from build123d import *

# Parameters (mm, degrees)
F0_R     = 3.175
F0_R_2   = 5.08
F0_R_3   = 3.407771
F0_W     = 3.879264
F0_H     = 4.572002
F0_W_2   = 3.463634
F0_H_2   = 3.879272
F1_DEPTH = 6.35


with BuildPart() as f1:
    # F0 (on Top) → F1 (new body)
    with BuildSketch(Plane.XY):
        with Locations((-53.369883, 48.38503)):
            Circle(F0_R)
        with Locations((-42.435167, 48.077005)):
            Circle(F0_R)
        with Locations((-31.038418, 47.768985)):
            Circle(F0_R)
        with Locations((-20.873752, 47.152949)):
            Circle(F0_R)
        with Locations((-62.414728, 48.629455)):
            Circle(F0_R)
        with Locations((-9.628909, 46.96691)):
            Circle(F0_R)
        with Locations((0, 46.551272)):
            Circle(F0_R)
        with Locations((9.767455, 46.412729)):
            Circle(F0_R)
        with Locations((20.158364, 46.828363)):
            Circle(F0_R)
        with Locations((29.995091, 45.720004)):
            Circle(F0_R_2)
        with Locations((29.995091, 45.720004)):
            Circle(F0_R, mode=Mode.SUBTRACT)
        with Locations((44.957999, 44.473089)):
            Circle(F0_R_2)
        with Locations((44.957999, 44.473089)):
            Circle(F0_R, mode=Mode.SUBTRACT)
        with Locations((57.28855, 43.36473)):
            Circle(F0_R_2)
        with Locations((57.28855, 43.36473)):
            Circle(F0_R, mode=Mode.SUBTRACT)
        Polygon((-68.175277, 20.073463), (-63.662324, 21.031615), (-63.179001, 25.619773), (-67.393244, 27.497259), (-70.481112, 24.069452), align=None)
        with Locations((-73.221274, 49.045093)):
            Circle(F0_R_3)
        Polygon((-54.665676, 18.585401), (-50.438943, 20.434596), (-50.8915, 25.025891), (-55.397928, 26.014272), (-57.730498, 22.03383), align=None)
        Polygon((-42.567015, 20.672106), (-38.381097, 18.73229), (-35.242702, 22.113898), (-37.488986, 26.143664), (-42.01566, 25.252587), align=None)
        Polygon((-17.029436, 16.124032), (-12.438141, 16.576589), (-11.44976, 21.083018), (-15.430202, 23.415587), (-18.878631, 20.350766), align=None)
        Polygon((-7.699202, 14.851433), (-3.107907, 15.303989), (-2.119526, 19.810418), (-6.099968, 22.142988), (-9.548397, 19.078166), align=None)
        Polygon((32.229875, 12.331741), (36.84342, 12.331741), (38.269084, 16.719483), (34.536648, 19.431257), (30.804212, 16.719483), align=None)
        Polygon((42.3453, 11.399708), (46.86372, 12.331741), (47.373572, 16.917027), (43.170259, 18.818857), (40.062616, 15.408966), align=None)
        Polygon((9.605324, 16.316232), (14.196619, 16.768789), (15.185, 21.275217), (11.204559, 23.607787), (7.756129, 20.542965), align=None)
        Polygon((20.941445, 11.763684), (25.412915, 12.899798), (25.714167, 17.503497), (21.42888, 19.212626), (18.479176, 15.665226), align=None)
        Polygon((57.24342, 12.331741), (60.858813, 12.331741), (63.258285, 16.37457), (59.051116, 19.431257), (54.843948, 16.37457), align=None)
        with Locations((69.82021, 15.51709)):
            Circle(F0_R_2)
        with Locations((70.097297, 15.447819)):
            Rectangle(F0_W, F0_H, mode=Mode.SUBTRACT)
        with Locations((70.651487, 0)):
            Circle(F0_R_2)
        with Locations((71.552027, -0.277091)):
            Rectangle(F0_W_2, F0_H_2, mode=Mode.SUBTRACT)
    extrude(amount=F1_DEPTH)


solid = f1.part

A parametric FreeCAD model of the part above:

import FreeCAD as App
import Part
import Sketcher
from FreeCAD import Vector
Q = App.Units.Quantity


def add_polygon(sketch, points):
    """Adds a closed chain of lines whose ends are joined by coincident constraints."""
    first, n = sketch.GeometryCount, len(points)
    for a, b in zip(points, points[1:] + points[:1]):
        sketch.addGeometry(Part.LineSegment(App.Vector(*a, 0), App.Vector(*b, 0)), False)
    for i in range(n):
        sketch.addConstraint(Sketcher.Constraint("Coincident", first + i, 2, first + (i + 1) % n, 1))

doc = App.newDocument("Part")
body = doc.addObject("PartDesign::Body", "Body")
body.AllowCompound = True

sketch1 = body.newObject("Sketcher::SketchObject", "Sketch")
sketch1.AttachmentSupport = (doc.getObject("XY_Plane"), [""])
sketch1.MapMode = "FlatFace"
sketch1.addGeometry(Part.Circle(Vector(-53.369883, 48.38503, 0), Vector(0, 0, 1), 3.175), False)
sketch1.addGeometry(Part.Circle(Vector(-42.435167, 48.077005, 0), Vector(0, 0, 1), 3.175), False)
sketch1.addGeometry(Part.Circle(Vector(-31.038418, 47.768985, 0), Vector(0, 0, 1), 3.175), False)
sketch1.addGeometry(Part.Circle(Vector(-20.873752, 47.152949, 0), Vector(0, 0, 1), 3.175), False)
sketch1.addGeometry(Part.Circle(Vector(-62.414728, 48.629455, 0), Vector(0, 0, 1), 3.175), False)
sketch1.addGeometry(Part.Circle(Vector(-9.628909, 46.96691, 0), Vector(0, 0, 1), 3.175), False)
sketch1.addGeometry(Part.Circle(Vector(0, 46.551272, 0), Vector(0, 0, 1), 3.175), False)
sketch1.addGeometry(Part.Circle(Vector(9.767455, 46.412729, 0), Vector(0, 0, 1), 3.175), False)
sketch1.addGeometry(Part.Circle(Vector(20.158364, 46.828363, 0), Vector(0, 0, 1), 3.175), False)
sketch1.addGeometry(Part.Circle(Vector(29.995091, 45.720004, 0), Vector(0, 0, 1), 5.08), False)
sketch1.addGeometry(Part.Circle(Vector(29.995091, 45.720004, 0), Vector(0, 0, 1), 3.175), False)
sketch1.addGeometry(Part.Circle(Vector(44.957999, 44.473089, 0), Vector(0, 0, 1), 5.08), False)
sketch1.addGeometry(Part.Circle(Vector(44.957999, 44.473089, 0), Vector(0, 0, 1), 3.175), False)
sketch1.addGeometry(Part.Circle(Vector(57.28855, 43.36473, 0), Vector(0, 0, 1), 5.08), False)
sketch1.addGeometry(Part.Circle(Vector(57.28855, 43.36473, 0), Vector(0, 0, 1), 3.175), False)
add_polygon(sketch1, [(-68.175277, 20.073463), (-63.662324, 21.031615), (-63.179001, 25.619773), (-67.393244, 27.497259), (-70.481112, 24.069452)])
sketch1.addGeometry(Part.Circle(Vector(-73.221274, 49.045093, 0), Vector(0, 0, 1), 3.407771), False)
add_polygon(sketch1, [(-54.665676, 18.585401), (-50.438943, 20.434596), (-50.8915, 25.025891), (-55.397928, 26.014272), (-57.730498, 22.03383)])
add_polygon(sketch1, [(-42.567015, 20.672106), (-38.381097, 18.73229), (-35.242702, 22.113898), (-37.488986, 26.143664), (-42.01566, 25.252587)])
add_polygon(sketch1, [(-17.029436, 16.124032), (-12.438141, 16.576589), (-11.44976, 21.083018), (-15.430202, 23.415587), (-18.878631, 20.350766)])
add_polygon(sketch1, [(-7.699202, 14.851433), (-3.107907, 15.303989), (-2.119526, 19.810418), (-6.099968, 22.142988), (-9.548397, 19.078166)])
add_polygon(sketch1, [(32.229875, 12.331741), (36.84342, 12.331741), (38.269084, 16.719483), (34.536648, 19.431257), (30.804212, 16.719483)])
add_polygon(sketch1, [(42.3453, 11.399708), (46.86372, 12.331741), (47.373572, 16.917027), (43.170259, 18.818857), (40.062616, 15.408966)])
add_polygon(sketch1, [(9.605324, 16.316232), (14.196619, 16.768789), (15.185, 21.275217), (11.204559, 23.607787), (7.756129, 20.542965)])
add_polygon(sketch1, [(20.941445, 11.763684), (25.412915, 12.899798), (25.714167, 17.503497), (21.42888, 19.212626), (18.479176, 15.665226)])
add_polygon(sketch1, [(57.24342, 12.331741), (60.858813, 12.331741), (63.258285, 16.37457), (59.051116, 19.431257), (54.843948, 16.37457)])
sketch1.addGeometry(Part.Circle(Vector(69.82021, 15.51709, 0), Vector(0, 0, 1), 5.08), False)
add_polygon(sketch1, [(72.036929, 13.161818), (68.157665, 13.161818), (68.157665, 17.73382), (72.036929, 17.73382)])
sketch1.addGeometry(Part.Circle(Vector(70.651487, 0, 0), Vector(0, 0, 1), 5.08), False)
add_polygon(sketch1, [(73.283844, -2.216727), (69.82021, -2.216727), (69.82021, 1.662545), (73.283844, 1.662545)])
sketch1.addConstraint([
    Sketcher.Constraint("Horizontal", 41),
    Sketcher.Constraint("Horizontal", 61),
    Sketcher.Constraint("Horizontal", 67),
    Sketcher.Constraint("Vertical", 68),
    Sketcher.Constraint("Horizontal", 69),
    Sketcher.Constraint("Vertical", 70),
    Sketcher.Constraint("Horizontal", 72),
    Sketcher.Constraint("Vertical", 73),
    Sketcher.Constraint("Horizontal", 74),
    Sketcher.Constraint("Vertical", 75),
    Sketcher.Constraint("Coincident", 10, 3, 9, 3),
    Sketcher.Constraint("Coincident", 12, 3, 11, 3),
    Sketcher.Constraint("Coincident", 14, 3, 13, 3),
    Sketcher.Constraint("Equal", 0, 1),
    Sketcher.Constraint("Equal", 1, 2),
    Sketcher.Constraint("Equal", 2, 3),
    Sketcher.Constraint("Equal", 3, 4),
    Sketcher.Constraint("Equal", 4, 5),
    Sketcher.Constraint("Equal", 5, 6),
    Sketcher.Constraint("Equal", 6, 7),
    Sketcher.Constraint("Equal", 7, 8),
    Sketcher.Constraint("Equal", 8, 10),
    Sketcher.Constraint("Equal", 9, 11),
    Sketcher.Constraint("Equal", 10, 12),
    Sketcher.Constraint("Equal", 11, 13),
    Sketcher.Constraint("Equal", 12, 14),
    Sketcher.Constraint("Equal", 13, 66),
    Sketcher.Constraint("Equal", 66, 71),
    Sketcher.Constraint("PointOnObject", 6, 3, -2),
    Sketcher.Constraint("PointOnObject", 71, 3, -1),
    Sketcher.Constraint("Perpendicular", 22, 31),
    Sketcher.Constraint("Perpendicular", 23, 32),
    Sketcher.Constraint("Perpendicular", 24, 33),
    Sketcher.Constraint("Perpendicular", 25, 34),
    Sketcher.Constraint("Perpendicular", 21, 35),
    Sketcher.Constraint("Parallel", 31, 36),
    Sketcher.Constraint("Parallel", 32, 37),
    Sketcher.Constraint("Parallel", 33, 38),
    Sketcher.Constraint("Parallel", 34, 39),
    Sketcher.Constraint("Parallel", 35, 40),
    Sketcher.Constraint("Parallel", 36, 51),
    Sketcher.Constraint("Parallel", 37, 52),
    Sketcher.Constraint("Parallel", 38, 53),
    Sketcher.Constraint("Parallel", 39, 54),
    Sketcher.Constraint("Parallel", 40, 55),
    Sketcher.Constraint("Parallel", 43, 63),
    Sketcher.Constraint("Parallel", 44, 64),
    Sketcher.Constraint("Horizontal", 42, 2, 44, 2),
    Sketcher.Constraint("Horizontal", 45, 2, 46, 2),
    Sketcher.Constraint("Horizontal", 46, 2, 61, 2),
    Sketcher.Constraint("Horizontal", 43, 2, 63, 2),
    Sketcher.Constraint("Horizontal", 62, 2, 64, 2),
    Sketcher.Constraint("Vertical", 66, 3, 72, 2),
    Sketcher.Constraint("Equal", 15, 16),
    Sketcher.Constraint("Equal", 16, 17),
    Sketcher.Constraint("Equal", 17, 18),
    Sketcher.Constraint("Equal", 18, 19),
    Sketcher.Constraint("Equal", 19, 21),
    Sketcher.Constraint("Equal", 21, 22),
    Sketcher.Constraint("Equal", 22, 23),
    Sketcher.Constraint("Equal", 23, 24),
    Sketcher.Constraint("Equal", 24, 25),
    Sketcher.Constraint("Equal", 25, 26),
    Sketcher.Constraint("Equal", 26, 27),
    Sketcher.Constraint("Equal", 27, 28),
    Sketcher.Constraint("Equal", 28, 29),
    Sketcher.Constraint("Equal", 29, 30),
    Sketcher.Constraint("Equal", 30, 31),
    Sketcher.Constraint("Equal", 31, 32),
    Sketcher.Constraint("Equal", 32, 33),
    Sketcher.Constraint("Equal", 35, 36),
    Sketcher.Constraint("Equal", 36, 37),
    Sketcher.Constraint("Equal", 37, 38),
    Sketcher.Constraint("Equal", 40, 42),
    Sketcher.Constraint("Equal", 42, 43),
    Sketcher.Constraint("Equal", 43, 44),
    Sketcher.Constraint("Equal", 44, 45),
    Sketcher.Constraint("Equal", 45, 46),
    Sketcher.Constraint("Equal", 46, 47),
    Sketcher.Constraint("Equal", 47, 48),
    Sketcher.Constraint("Equal", 48, 49),
    Sketcher.Constraint("Equal", 49, 50),
    Sketcher.Constraint("Equal", 50, 51),
    Sketcher.Constraint("Equal", 51, 52),
    Sketcher.Constraint("Equal", 52, 53),
    Sketcher.Constraint("Equal", 55, 56),
    Sketcher.Constraint("Equal", 56, 57),
    Sketcher.Constraint("Equal", 57, 58),
    Sketcher.Constraint("Equal", 58, 59),
    Sketcher.Constraint("Equal", 59, 60),
    Sketcher.Constraint("Equal", 62, 65),
    Sketcher.Constraint("Diameter", 9, Q("0.4 in")),
    Sketcher.Constraint("Diameter", 0, Q("0.25 in")),
    Sketcher.Constraint("Angle", 42, Q("71.999998 deg")),
    Sketcher.Constraint("Angle", 43, Q("143.999995 deg")),
    Sketcher.Constraint("DistanceY", 68, 1, 68, 2, Q("0.1800001 in")),
    Sketcher.Constraint("DistanceY", -1, 1, 9, 3, Q("1.8000002 in")),
    Sketcher.Constraint("DistanceX", -1, 1, 11, 3, Q("1.77 in")),
    Sketcher.Constraint("Diameter", 20, 6.815542),
    Sketcher.Constraint("DistanceY", -1, 1, 48, 2, Q("0.7408999 in")),
    Sketcher.Constraint("DistanceX", 16, 2, -1, 1, 63.179001),
    Sketcher.Constraint("DistanceX", 22, 2, -1, 1, 50.8915),
    Sketcher.Constraint("DistanceY", -1, 1, 25, 2, 18.585401),
    Sketcher.Constraint("DistanceX", 40, 2, -1, 1, 7.699202),
    Sketcher.Constraint("DistanceX", -1, 1, 50, 2, 42.3453),
    Sketcher.Constraint("DistanceX", -1, 1, 52, 2, 15.185),
    Sketcher.Constraint("Distance", 62, 4.701269),
    Sketcher.Constraint("DistanceX", 41, 1, 41, 2, 4.613545),
    Sketcher.Constraint("DistanceX", 61, 1, 61, 2, 3.615393),
    Sketcher.Constraint("DistanceX", 67, 2, 67, 1, 3.879264),
    Sketcher.Constraint("DistanceX", 72, 2, 72, 1, 3.463634),
    Sketcher.Constraint("DistanceY", 73, 1, 73, 2, 3.879272),
    Sketcher.Constraint("DistanceY", -1, 1, 0, 3, 48.38503),
    Sketcher.Constraint("DistanceX", 2, 3, -1, 1, 31.038418),
    Sketcher.Constraint("DistanceX", 3, 3, -1, 1, 20.873752),
    Sketcher.Constraint("DistanceY", -1, 1, 3, 3, 47.152949),
    Sketcher.Constraint("DistanceX", 5, 3, -1, 1, 9.628909),
    Sketcher.Constraint("DistanceY", -1, 1, 5, 3, 46.96691),
    Sketcher.Constraint("DistanceY", -1, 1, 6, 3, 46.551272),
    Sketcher.Constraint("DistanceY", -1, 1, 7, 3, 46.412729),
    Sketcher.Constraint("DistanceX", -1, 1, 9, 3, 29.995091),
    Sketcher.Constraint("DistanceY", -1, 1, 11, 3, 44.473089),
    Sketcher.Constraint("DistanceX", -1, 1, 13, 3, 57.28855),
    Sketcher.Constraint("DistanceY", -1, 1, 13, 3, 43.36473),
    Sketcher.Constraint("DistanceX", -1, 1, 66, 3, 69.82021),
    Sketcher.Constraint("DistanceY", -1, 1, 66, 3, 15.51709),
    Sketcher.Constraint("DistanceY", -1, 1, 17, 2, 27.497259),
    Sketcher.Constraint("DistanceX", 18, 2, -1, 1, 70.481112),
    Sketcher.Constraint("DistanceY", -1, 1, 18, 2, 24.069452),
    Sketcher.Constraint("DistanceY", -1, 1, 22, 2, 25.025891),
    Sketcher.Constraint("DistanceY", -1, 1, 23, 2, 26.014272),
    Sketcher.Constraint("DistanceY", -1, 1, 24, 2, 22.03383),
    Sketcher.Constraint("DistanceY", -1, 1, 26, 2, 18.73229),
    Sketcher.Constraint("DistanceX", 29, 2, -1, 1, 42.01566),
    Sketcher.Constraint("DistanceX", 31, 2, -1, 1, 12.438141),
    Sketcher.Constraint("DistanceY", -1, 1, 31, 2, 16.576589),
    Sketcher.Constraint("DistanceY", -1, 1, 36, 2, 15.303989),
    Sketcher.Constraint("DistanceX", -1, 1, 41, 2, 36.84342),
    Sketcher.Constraint("DistanceY", -1, 1, 41, 2, 12.331741),
    Sketcher.Constraint("DistanceX", -1, 1, 46, 2, 46.86372),
    Sketcher.Constraint("DistanceX", -1, 1, 48, 2, 43.170259),
    Sketcher.Constraint("DistanceY", -1, 1, 51, 2, 16.768789),
    Sketcher.Constraint("DistanceX", -1, 1, 58, 2, 21.42888),
    Sketcher.Constraint("DistanceX", -1, 1, 65, 2, 57.24342),
    Sketcher.Constraint("DistanceY", -1, 1, 68, 2, 17.73382),
    Sketcher.Constraint("DistanceX", -1, 1, 69, 2, 72.036929),
    Sketcher.Constraint("DistanceX", 0, 3, -1, 1, 53.369883),
    Sketcher.Constraint("DistanceX", 1, 3, -1, 1, 42.435167),
    Sketcher.Constraint("DistanceY", -1, 1, 1, 3, 48.077005),
    Sketcher.Constraint("DistanceY", -1, 1, 2, 3, 47.768985),
    Sketcher.Constraint("DistanceX", 4, 3, -1, 1, 62.414728),
    Sketcher.Constraint("DistanceY", -1, 1, 4, 3, 48.629455),
    Sketcher.Constraint("DistanceX", -1, 1, 7, 3, 9.767455),
    Sketcher.Constraint("DistanceX", -1, 1, 8, 3, 20.158364),
    Sketcher.Constraint("DistanceY", -1, 1, 8, 3, 46.828363),
    Sketcher.Constraint("DistanceX", 20, 3, -1, 1, 73.221274),
    Sketcher.Constraint("DistanceY", -1, 1, 20, 3, 49.045093),
    Sketcher.Constraint("DistanceX", -1, 1, 71, 3, 70.651487),
    Sketcher.Constraint("DistanceX", 15, 2, -1, 1, 63.662324),
    Sketcher.Constraint("DistanceX", 26, 2, -1, 1, 38.381097),
    Sketcher.Constraint("DistanceX", 27, 2, -1, 1, 35.242702),
    Sketcher.Constraint("DistanceX", 28, 2, -1, 1, 37.488986),
    Sketcher.Constraint("DistanceX", -1, 1, 56, 2, 25.412915),
    Sketcher.Constraint("DistanceY", -1, 1, 56, 2, 12.899798),
    Sketcher.Constraint("DistanceX", -1, 1, 57, 2, 25.714167),
    Sketcher.Constraint("DistanceX", -1, 1, 59, 2, 18.479176),
    Sketcher.Constraint("DistanceY", 72, 2, -1, 1, 2.216727),
])
pad1 = body.newObject("PartDesign::Pad", "Pad")
pad1.Profile = sketch1
pad1.Length = Q("0.25 in")

doc.recompute()
